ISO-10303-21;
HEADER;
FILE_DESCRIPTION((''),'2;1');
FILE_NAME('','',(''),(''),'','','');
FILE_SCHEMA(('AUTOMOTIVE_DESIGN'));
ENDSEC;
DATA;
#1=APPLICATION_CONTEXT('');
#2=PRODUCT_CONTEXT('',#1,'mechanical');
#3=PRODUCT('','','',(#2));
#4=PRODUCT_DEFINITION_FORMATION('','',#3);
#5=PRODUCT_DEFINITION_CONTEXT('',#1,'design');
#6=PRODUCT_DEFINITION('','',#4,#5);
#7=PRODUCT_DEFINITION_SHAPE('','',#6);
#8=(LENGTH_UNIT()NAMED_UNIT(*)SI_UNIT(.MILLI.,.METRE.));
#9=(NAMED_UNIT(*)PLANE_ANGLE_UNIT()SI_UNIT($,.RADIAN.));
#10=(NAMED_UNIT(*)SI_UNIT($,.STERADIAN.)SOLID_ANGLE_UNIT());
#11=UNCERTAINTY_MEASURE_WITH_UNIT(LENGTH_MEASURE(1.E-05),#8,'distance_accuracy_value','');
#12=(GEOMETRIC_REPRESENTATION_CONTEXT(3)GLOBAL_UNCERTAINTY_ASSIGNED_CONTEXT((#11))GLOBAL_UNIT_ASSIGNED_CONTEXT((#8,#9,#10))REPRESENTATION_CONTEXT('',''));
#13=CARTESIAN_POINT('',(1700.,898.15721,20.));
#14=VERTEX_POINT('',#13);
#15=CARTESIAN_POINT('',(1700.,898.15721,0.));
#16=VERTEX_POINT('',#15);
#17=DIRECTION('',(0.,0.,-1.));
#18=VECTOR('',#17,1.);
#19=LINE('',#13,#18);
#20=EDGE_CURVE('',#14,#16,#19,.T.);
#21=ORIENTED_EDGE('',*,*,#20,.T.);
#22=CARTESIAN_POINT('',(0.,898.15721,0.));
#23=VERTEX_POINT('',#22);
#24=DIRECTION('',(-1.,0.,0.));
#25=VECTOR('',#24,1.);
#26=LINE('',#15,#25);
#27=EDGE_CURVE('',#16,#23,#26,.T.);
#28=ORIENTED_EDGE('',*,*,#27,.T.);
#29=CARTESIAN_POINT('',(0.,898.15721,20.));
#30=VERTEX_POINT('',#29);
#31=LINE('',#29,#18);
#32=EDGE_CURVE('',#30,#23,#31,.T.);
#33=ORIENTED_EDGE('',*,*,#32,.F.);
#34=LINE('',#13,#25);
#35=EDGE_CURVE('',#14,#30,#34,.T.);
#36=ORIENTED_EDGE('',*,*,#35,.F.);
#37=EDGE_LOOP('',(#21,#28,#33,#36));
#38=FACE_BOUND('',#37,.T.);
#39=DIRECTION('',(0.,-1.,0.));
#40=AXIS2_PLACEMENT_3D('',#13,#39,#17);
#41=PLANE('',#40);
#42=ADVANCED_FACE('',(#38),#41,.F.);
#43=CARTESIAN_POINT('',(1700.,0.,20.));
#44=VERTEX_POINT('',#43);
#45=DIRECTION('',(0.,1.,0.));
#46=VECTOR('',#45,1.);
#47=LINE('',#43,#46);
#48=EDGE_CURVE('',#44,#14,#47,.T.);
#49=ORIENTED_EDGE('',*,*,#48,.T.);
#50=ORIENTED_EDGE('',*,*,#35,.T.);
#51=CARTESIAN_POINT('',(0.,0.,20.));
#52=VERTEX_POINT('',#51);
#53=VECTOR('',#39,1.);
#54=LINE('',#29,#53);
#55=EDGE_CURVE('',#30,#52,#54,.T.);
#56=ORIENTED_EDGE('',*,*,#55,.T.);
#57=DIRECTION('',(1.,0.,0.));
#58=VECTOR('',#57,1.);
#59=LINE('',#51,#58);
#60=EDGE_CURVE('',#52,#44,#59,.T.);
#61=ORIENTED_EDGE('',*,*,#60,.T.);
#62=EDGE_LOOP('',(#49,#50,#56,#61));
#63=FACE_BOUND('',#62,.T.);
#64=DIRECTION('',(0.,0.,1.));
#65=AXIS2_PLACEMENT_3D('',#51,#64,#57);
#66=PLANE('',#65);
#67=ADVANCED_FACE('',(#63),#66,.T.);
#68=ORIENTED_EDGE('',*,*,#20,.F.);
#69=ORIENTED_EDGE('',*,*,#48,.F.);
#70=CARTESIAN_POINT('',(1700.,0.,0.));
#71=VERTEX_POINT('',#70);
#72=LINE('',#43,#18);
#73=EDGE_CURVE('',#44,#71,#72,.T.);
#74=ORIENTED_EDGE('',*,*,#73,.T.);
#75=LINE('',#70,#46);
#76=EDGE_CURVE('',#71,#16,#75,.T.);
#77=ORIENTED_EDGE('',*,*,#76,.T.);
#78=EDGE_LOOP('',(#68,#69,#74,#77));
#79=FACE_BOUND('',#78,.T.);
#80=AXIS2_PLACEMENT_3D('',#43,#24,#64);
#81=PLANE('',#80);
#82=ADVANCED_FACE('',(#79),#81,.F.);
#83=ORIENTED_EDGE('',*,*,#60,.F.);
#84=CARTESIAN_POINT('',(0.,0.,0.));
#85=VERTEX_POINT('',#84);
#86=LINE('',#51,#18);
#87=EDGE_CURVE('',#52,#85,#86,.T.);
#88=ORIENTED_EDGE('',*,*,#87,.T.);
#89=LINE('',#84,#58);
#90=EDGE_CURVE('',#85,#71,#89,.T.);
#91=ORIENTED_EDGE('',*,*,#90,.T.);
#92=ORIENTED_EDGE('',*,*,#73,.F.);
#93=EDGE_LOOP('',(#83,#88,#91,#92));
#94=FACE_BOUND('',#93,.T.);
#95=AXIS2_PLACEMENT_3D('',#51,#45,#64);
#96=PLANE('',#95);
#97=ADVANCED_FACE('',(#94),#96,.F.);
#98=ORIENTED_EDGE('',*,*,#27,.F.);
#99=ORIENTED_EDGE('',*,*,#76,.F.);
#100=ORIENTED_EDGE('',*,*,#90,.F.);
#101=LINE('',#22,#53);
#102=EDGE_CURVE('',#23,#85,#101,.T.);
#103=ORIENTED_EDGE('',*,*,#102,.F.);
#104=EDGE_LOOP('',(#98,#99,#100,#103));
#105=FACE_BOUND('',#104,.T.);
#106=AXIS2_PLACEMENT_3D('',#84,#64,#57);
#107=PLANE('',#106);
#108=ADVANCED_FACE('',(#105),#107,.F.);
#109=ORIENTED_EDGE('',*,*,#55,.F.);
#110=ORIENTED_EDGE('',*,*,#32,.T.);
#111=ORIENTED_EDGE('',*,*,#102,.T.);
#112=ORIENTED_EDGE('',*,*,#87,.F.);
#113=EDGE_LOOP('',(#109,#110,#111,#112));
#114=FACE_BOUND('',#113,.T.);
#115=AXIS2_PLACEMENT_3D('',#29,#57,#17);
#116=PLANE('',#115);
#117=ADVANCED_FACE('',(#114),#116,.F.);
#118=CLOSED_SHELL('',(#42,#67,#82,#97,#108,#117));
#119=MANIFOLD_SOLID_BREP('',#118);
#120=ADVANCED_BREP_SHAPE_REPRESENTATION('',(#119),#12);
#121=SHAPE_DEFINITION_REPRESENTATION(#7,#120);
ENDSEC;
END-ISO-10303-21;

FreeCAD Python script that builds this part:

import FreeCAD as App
import Part
import Sketcher
Q = App.Units.Quantity

doc = App.newDocument("Part")
body = doc.addObject("PartDesign::Body", "Body")

sketch1 = body.newObject("Sketcher::SketchObject", "Sketch")
sketch1.AttachmentSupport = (doc.getObject("XY_Plane"), [""])
sketch1.MapMode = "FlatFace"
sketch1.addGeometry(Part.LineSegment(App.Vector(0, 898.15721, 0), App.Vector(0, 0, 0)), False)
sketch1.addGeometry(Part.LineSegment(App.Vector(0, 0, 0), App.Vector(1700, 0, 0)), False)
sketch1.addGeometry(Part.LineSegment(App.Vector(1700, 0, 0), App.Vector(1700, 898.15721, 0)), False)
sketch1.addGeometry(Part.LineSegment(App.Vector(1700, 898.15721, 0), App.Vector(0, 898.15721, 0)), False)
sketch1.addConstraint(Sketcher.Constraint("Coincident", 0, 2, 1, 1))
sketch1.addConstraint(Sketcher.Constraint("Coincident", 1, 2, 2, 1))
sketch1.addConstraint(Sketcher.Constraint("Coincident", 2, 2, 3, 1))
sketch1.addConstraint(Sketcher.Constraint("Coincident", 3, 2, 0, 1))
sketch1.addConstraint(Sketcher.Constraint("Vertical", 0))
sketch1.addConstraint(Sketcher.Constraint("Horizontal", 1))
sketch1.addConstraint(Sketcher.Constraint("Vertical", 2))
sketch1.addConstraint(Sketcher.Constraint("Horizontal", 3))
sketch1.addConstraint(Sketcher.Constraint("Coincident", 0, 2, -1, 1))
sketch1.addConstraint(Sketcher.Constraint("DistanceX", 1, 1, 1, 2, Q("1700 mm")))
sketch1.addConstraint(Sketcher.Constraint("DistanceY", 0, 2, 0, 1, Q("898.15721 mm")))
pad1 = body.newObject("PartDesign::Pad", "Pad")
pad1.Profile = sketch1
pad1.Length = 20

doc.recompute()
